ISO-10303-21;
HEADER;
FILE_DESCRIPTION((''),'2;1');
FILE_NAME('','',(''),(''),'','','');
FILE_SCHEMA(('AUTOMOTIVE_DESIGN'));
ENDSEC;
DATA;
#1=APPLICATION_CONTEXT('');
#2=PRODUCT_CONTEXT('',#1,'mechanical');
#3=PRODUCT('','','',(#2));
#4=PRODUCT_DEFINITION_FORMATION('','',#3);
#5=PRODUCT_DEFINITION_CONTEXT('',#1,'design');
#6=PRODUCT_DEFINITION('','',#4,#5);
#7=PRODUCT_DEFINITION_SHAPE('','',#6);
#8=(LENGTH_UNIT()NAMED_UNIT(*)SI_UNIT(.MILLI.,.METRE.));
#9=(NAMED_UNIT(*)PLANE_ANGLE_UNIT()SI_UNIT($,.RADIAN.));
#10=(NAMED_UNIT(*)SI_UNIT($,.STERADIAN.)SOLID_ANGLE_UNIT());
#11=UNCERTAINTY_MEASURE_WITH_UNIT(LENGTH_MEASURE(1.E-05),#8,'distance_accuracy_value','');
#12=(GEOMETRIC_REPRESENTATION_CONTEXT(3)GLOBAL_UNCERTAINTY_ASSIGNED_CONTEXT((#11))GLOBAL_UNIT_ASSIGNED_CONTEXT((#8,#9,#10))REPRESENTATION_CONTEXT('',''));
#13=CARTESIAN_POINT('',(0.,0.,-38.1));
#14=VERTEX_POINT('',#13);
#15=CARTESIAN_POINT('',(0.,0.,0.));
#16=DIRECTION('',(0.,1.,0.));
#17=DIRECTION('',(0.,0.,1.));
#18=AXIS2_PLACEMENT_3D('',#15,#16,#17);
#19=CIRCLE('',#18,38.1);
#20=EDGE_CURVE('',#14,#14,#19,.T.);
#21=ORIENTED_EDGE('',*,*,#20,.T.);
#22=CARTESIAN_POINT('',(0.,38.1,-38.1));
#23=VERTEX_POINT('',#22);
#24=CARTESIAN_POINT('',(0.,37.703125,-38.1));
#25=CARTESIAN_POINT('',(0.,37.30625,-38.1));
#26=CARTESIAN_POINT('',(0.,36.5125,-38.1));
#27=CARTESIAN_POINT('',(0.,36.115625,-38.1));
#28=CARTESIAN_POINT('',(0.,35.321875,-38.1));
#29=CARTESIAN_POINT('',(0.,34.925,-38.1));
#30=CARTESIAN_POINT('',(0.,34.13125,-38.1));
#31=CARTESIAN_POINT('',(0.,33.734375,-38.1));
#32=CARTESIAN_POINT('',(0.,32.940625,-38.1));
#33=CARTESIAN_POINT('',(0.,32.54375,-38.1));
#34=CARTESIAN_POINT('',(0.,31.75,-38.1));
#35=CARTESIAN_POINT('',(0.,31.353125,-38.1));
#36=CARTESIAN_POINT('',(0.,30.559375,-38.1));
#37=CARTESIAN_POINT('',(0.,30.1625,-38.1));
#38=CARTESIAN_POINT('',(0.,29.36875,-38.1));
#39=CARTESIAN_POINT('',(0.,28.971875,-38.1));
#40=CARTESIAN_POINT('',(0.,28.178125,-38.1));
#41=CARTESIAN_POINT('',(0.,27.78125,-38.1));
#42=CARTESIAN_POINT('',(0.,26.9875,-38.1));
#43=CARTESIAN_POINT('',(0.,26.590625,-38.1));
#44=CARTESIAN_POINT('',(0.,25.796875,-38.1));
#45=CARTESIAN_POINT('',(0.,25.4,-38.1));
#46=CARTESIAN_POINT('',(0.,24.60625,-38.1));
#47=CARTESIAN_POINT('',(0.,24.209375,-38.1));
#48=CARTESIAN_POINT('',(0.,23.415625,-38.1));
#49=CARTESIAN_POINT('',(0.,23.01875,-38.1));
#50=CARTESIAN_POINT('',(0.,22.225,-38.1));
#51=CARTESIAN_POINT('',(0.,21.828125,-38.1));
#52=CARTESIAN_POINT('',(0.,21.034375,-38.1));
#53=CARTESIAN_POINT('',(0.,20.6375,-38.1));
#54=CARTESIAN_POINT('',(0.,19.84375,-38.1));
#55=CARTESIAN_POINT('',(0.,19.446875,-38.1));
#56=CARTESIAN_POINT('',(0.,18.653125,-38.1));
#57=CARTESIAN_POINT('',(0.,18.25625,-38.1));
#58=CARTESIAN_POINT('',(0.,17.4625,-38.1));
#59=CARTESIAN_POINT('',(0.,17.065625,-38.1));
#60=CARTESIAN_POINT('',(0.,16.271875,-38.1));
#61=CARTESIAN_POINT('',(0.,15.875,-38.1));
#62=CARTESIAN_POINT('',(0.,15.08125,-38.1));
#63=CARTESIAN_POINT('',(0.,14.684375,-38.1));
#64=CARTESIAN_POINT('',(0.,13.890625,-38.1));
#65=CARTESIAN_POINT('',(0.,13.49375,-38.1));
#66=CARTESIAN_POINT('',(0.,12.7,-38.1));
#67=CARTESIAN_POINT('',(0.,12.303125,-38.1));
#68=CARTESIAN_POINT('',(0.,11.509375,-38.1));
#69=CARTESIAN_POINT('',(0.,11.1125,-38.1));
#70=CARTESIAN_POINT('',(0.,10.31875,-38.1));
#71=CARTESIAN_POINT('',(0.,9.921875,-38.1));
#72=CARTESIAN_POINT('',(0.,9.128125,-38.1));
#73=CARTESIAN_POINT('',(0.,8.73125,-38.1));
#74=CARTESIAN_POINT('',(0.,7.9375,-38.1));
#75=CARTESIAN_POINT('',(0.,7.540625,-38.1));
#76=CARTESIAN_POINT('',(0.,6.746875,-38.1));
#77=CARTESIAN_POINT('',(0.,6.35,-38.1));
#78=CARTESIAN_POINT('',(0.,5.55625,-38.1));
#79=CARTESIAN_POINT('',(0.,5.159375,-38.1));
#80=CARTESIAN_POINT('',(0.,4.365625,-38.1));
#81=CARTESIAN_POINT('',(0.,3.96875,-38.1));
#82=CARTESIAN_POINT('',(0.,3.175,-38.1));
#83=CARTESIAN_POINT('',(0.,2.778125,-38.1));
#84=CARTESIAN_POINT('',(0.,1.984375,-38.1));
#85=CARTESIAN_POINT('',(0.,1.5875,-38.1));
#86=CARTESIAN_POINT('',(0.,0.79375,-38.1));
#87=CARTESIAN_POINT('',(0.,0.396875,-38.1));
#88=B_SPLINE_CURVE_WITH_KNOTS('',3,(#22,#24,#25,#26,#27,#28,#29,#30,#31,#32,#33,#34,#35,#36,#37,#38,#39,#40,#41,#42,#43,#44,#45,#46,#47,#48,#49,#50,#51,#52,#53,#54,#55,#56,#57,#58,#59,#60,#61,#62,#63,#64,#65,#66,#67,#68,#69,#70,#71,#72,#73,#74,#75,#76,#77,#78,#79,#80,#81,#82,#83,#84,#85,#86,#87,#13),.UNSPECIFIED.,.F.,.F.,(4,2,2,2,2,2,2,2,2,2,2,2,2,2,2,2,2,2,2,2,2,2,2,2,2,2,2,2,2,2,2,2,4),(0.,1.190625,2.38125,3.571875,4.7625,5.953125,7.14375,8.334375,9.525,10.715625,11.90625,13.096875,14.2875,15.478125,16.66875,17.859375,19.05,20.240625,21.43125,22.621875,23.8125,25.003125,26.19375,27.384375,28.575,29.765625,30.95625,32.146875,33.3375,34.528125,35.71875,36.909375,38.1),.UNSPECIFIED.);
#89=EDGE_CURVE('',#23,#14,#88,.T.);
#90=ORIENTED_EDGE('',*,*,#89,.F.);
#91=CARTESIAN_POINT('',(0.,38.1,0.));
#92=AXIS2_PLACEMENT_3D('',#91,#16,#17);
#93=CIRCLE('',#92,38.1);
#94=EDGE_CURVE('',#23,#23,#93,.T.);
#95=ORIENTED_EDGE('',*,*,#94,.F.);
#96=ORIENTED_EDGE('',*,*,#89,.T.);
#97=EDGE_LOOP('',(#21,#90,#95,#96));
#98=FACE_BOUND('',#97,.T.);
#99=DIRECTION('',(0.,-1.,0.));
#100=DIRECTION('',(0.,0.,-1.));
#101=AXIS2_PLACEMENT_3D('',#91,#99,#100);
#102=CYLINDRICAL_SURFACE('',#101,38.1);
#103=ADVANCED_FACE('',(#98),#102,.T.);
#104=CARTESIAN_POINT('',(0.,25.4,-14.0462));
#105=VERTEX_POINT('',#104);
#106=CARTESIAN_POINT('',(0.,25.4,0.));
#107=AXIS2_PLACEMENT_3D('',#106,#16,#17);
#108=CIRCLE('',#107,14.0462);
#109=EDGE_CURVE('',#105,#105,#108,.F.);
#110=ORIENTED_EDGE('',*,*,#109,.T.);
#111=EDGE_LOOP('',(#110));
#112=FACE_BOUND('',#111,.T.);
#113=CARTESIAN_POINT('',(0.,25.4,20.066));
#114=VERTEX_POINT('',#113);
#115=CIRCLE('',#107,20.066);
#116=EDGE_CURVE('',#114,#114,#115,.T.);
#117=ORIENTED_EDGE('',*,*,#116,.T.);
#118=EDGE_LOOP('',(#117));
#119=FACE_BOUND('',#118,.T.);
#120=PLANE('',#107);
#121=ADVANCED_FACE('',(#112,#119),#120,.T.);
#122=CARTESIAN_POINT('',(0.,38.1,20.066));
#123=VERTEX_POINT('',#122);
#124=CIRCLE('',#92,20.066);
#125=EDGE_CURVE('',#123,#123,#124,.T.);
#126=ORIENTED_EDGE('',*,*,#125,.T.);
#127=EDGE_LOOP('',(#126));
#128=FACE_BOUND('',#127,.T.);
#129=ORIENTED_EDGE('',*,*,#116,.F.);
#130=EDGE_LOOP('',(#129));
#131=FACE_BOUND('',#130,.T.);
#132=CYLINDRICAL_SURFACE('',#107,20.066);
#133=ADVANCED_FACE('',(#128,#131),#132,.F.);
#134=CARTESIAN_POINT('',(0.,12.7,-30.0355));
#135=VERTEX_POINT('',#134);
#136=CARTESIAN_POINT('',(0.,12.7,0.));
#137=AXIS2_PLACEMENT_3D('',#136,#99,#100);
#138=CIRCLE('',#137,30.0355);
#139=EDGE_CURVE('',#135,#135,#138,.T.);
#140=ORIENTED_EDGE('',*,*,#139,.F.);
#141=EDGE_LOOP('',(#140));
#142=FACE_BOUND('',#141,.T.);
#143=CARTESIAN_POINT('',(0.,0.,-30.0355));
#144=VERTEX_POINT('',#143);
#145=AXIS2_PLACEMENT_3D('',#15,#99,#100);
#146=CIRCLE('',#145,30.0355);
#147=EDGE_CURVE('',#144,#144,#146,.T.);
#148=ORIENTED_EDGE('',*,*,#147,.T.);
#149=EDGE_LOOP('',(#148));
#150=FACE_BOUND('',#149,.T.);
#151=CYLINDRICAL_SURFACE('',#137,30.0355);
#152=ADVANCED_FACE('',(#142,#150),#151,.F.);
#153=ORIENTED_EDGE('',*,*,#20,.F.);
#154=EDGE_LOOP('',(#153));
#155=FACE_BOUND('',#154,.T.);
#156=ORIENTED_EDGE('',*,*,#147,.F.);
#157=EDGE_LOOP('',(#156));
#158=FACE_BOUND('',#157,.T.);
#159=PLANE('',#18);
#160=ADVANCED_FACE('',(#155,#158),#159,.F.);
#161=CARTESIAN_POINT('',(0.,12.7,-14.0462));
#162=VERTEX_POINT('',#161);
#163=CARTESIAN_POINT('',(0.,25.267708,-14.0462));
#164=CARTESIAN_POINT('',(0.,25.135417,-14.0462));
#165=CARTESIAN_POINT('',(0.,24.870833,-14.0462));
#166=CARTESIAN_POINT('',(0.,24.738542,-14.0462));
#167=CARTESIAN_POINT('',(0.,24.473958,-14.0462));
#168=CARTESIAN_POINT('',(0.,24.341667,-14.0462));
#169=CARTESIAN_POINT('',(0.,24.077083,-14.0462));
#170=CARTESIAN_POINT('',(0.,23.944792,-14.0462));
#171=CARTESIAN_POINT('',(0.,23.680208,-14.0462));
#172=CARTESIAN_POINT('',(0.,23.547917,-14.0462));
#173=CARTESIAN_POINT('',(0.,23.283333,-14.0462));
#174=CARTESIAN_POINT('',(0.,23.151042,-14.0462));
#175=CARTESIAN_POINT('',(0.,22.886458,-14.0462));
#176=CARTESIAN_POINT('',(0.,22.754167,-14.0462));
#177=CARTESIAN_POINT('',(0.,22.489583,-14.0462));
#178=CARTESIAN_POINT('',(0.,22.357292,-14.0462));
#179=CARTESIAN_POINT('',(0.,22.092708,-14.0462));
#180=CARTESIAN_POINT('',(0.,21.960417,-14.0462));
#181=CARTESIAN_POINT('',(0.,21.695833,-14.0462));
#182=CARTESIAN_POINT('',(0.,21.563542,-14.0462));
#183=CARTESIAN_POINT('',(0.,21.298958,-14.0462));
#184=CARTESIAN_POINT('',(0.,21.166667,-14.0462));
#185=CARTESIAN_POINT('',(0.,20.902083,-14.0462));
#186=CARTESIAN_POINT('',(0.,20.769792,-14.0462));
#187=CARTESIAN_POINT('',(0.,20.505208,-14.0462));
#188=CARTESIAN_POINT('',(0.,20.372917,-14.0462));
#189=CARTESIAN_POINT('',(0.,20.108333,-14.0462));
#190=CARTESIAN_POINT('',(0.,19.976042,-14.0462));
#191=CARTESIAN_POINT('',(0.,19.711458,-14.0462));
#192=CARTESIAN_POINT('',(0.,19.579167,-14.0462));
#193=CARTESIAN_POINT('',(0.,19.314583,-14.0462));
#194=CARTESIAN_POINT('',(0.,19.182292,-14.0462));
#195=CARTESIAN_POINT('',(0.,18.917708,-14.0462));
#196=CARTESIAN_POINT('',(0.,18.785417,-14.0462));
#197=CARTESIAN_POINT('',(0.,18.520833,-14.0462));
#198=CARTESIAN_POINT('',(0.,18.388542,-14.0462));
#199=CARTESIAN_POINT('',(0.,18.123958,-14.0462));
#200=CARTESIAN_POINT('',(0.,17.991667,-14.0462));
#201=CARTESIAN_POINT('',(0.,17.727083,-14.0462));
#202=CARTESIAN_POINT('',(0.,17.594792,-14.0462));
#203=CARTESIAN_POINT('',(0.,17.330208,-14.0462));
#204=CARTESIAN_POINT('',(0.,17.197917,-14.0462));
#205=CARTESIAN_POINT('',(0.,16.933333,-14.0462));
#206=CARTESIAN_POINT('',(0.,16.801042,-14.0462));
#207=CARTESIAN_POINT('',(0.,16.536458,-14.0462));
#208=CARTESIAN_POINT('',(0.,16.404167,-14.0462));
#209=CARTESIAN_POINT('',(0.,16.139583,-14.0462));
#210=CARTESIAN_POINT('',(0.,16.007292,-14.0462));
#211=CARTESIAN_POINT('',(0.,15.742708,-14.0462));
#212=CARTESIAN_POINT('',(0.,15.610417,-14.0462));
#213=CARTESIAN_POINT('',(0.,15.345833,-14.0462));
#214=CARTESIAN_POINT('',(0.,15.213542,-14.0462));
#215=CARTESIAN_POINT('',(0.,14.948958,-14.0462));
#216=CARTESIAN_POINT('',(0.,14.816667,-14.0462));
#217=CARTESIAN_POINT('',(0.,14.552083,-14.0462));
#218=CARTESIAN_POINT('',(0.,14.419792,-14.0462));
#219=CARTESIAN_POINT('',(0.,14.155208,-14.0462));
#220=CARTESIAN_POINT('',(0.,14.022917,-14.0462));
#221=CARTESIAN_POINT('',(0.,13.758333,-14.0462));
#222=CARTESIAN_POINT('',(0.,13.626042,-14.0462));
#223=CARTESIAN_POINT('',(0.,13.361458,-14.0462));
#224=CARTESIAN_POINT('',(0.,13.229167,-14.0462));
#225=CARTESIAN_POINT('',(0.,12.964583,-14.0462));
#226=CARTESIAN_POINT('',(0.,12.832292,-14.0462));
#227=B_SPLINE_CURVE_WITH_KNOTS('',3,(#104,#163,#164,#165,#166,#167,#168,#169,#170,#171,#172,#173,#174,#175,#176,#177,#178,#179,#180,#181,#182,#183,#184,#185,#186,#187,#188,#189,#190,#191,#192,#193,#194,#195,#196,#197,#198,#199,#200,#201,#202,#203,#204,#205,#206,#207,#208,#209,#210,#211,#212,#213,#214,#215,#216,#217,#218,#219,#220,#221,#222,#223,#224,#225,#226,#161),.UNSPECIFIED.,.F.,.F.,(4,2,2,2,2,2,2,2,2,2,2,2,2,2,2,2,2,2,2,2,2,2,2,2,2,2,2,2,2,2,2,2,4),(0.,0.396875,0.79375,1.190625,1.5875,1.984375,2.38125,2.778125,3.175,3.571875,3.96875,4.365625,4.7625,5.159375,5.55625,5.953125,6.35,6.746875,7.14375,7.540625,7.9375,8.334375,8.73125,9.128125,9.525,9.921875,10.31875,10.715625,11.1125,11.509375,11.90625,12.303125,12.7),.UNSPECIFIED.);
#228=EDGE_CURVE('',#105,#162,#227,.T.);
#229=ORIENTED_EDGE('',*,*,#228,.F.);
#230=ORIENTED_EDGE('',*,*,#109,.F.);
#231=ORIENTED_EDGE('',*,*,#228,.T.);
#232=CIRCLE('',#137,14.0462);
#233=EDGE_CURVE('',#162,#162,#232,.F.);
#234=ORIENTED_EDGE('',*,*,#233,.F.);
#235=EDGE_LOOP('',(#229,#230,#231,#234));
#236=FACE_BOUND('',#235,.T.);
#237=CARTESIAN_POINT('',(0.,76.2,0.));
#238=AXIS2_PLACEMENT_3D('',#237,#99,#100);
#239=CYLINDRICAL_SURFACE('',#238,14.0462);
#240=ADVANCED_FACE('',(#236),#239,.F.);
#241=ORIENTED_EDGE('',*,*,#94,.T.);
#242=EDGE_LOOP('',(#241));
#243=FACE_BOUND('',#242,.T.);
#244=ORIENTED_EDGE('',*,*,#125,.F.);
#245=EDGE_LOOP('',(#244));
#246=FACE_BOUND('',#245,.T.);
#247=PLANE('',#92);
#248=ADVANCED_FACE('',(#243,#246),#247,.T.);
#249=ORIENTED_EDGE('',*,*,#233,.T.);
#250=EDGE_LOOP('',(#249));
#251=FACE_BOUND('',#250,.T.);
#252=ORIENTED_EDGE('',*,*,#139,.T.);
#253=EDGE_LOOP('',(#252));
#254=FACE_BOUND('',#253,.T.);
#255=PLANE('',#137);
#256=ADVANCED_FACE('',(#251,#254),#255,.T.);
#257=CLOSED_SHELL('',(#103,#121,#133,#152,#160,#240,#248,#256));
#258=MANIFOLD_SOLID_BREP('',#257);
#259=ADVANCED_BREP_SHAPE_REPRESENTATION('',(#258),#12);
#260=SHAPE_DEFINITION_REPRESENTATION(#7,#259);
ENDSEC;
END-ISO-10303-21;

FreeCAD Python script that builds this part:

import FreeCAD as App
import Part
import Sketcher
Q = App.Units.Quantity

doc = App.newDocument("Part")
params = doc.addObject("Spreadsheet::Sheet", "Params")
for row, (alias, value) in enumerate([
    ("sketch1_diameter", "3 in"),
    ("pad1_length", "1.5 in"),
    ("sketch2_diameter", "1.106 in"),
    ("pocket1_length", "3 in"),
    ("sketch3_diameter", "1.58 in"),
    ("pocket2_length", "0.5 in"),
    ("sketch4_diameter", "2.365 in"),
    ("pocket3_length", "0.5 in"),
], start=1):
    params.set(f"A{row}", alias)
    params.set(f"B{row}", "=" + value)
    params.setAlias(f"B{row}", alias)

body = doc.addObject("PartDesign::Body", "Body")

sketch1 = body.newObject("Sketcher::SketchObject", "Sketch")
sketch1.AttachmentSupport = (doc.getObject("XZ_Plane"), [""])
sketch1.MapMode = "FlatFace"
sketch1.addGeometry(Part.Circle(App.Vector(0, 0, 0), App.Vector(0, 0, 1), 38), False)
sketch1.addConstraint([
    Sketcher.Constraint("Coincident", 0, 3, -1, 1),
    Sketcher.Constraint("Diameter", 0, Q("3 in")),
])
sketch1.setExpression("Constraints[1]", "Params.sketch1_diameter")
pad1 = body.newObject("PartDesign::Pad", "Pad")
pad1.Profile = sketch1
pad1.setExpression("Length", "Params.pad1_length")
pad1.Reversed = True

sketch2 = body.newObject("Sketcher::SketchObject", "Sketch001")
sketch2.AttachmentSupport = (doc.getObject("XZ_Plane"), [""])
sketch2.MapMode = "FlatFace"
sketch2.addGeometry(Part.Circle(App.Vector(0, 0, 0), App.Vector(0, 0, 1), 14), False)
sketch2.addConstraint([
    Sketcher.Constraint("Coincident", 0, 3, -1, 1),
    Sketcher.Constraint("Diameter", 0, Q("1.106 in")),
])
sketch2.setExpression("Constraints[1]", "Params.sketch2_diameter")
pocket1 = body.newObject("PartDesign::Pocket", "Pocket")
pocket1.Profile = sketch2
pocket1.setExpression("Length", "Params.pocket1_length")

sketch3 = body.newObject("Sketcher::SketchObject", "Sketch002")
sketch3.AttachmentSupport = (doc.getObject("XZ_Plane"), [""])
sketch3.MapMode = "FlatFace"
sketch3.AttachmentOffset = App.Placement(App.Vector(0, 0, -1.5 * 25.4), App.Rotation())
sketch3.addGeometry(Part.Circle(App.Vector(0, 0, 0), App.Vector(0, 0, 1), 20), False)
sketch3.addConstraint([
    Sketcher.Constraint("Coincident", 0, 3, -1, 1),
    Sketcher.Constraint("Diameter", 0, Q("1.58 in")),
])
sketch3.setExpression("Constraints[1]", "Params.sketch3_diameter")
pocket2 = body.newObject("PartDesign::Pocket", "Pocket001")
pocket2.Profile = sketch3
pocket2.setExpression("Length", "Params.pocket2_length")
pocket2.Reversed = True

sketch4 = body.newObject("Sketcher::SketchObject", "Sketch003")
sketch4.AttachmentSupport = (doc.getObject("XZ_Plane"), [""])
sketch4.MapMode = "FlatFace"
sketch4.addGeometry(Part.Circle(App.Vector(0, 0, 0), App.Vector(0, 0, 1), 30), False)
sketch4.addConstraint([
    Sketcher.Constraint("Coincident", 0, 3, -1, 1),
    Sketcher.Constraint("Diameter", 0, Q("2.365 in")),
])
sketch4.setExpression("Constraints[1]", "Params.sketch4_diameter")
pocket3 = body.newObject("PartDesign::Pocket", "Pocket002")
pocket3.Profile = sketch4
pocket3.setExpression("Length", "Params.pocket3_length")

doc.recompute()
